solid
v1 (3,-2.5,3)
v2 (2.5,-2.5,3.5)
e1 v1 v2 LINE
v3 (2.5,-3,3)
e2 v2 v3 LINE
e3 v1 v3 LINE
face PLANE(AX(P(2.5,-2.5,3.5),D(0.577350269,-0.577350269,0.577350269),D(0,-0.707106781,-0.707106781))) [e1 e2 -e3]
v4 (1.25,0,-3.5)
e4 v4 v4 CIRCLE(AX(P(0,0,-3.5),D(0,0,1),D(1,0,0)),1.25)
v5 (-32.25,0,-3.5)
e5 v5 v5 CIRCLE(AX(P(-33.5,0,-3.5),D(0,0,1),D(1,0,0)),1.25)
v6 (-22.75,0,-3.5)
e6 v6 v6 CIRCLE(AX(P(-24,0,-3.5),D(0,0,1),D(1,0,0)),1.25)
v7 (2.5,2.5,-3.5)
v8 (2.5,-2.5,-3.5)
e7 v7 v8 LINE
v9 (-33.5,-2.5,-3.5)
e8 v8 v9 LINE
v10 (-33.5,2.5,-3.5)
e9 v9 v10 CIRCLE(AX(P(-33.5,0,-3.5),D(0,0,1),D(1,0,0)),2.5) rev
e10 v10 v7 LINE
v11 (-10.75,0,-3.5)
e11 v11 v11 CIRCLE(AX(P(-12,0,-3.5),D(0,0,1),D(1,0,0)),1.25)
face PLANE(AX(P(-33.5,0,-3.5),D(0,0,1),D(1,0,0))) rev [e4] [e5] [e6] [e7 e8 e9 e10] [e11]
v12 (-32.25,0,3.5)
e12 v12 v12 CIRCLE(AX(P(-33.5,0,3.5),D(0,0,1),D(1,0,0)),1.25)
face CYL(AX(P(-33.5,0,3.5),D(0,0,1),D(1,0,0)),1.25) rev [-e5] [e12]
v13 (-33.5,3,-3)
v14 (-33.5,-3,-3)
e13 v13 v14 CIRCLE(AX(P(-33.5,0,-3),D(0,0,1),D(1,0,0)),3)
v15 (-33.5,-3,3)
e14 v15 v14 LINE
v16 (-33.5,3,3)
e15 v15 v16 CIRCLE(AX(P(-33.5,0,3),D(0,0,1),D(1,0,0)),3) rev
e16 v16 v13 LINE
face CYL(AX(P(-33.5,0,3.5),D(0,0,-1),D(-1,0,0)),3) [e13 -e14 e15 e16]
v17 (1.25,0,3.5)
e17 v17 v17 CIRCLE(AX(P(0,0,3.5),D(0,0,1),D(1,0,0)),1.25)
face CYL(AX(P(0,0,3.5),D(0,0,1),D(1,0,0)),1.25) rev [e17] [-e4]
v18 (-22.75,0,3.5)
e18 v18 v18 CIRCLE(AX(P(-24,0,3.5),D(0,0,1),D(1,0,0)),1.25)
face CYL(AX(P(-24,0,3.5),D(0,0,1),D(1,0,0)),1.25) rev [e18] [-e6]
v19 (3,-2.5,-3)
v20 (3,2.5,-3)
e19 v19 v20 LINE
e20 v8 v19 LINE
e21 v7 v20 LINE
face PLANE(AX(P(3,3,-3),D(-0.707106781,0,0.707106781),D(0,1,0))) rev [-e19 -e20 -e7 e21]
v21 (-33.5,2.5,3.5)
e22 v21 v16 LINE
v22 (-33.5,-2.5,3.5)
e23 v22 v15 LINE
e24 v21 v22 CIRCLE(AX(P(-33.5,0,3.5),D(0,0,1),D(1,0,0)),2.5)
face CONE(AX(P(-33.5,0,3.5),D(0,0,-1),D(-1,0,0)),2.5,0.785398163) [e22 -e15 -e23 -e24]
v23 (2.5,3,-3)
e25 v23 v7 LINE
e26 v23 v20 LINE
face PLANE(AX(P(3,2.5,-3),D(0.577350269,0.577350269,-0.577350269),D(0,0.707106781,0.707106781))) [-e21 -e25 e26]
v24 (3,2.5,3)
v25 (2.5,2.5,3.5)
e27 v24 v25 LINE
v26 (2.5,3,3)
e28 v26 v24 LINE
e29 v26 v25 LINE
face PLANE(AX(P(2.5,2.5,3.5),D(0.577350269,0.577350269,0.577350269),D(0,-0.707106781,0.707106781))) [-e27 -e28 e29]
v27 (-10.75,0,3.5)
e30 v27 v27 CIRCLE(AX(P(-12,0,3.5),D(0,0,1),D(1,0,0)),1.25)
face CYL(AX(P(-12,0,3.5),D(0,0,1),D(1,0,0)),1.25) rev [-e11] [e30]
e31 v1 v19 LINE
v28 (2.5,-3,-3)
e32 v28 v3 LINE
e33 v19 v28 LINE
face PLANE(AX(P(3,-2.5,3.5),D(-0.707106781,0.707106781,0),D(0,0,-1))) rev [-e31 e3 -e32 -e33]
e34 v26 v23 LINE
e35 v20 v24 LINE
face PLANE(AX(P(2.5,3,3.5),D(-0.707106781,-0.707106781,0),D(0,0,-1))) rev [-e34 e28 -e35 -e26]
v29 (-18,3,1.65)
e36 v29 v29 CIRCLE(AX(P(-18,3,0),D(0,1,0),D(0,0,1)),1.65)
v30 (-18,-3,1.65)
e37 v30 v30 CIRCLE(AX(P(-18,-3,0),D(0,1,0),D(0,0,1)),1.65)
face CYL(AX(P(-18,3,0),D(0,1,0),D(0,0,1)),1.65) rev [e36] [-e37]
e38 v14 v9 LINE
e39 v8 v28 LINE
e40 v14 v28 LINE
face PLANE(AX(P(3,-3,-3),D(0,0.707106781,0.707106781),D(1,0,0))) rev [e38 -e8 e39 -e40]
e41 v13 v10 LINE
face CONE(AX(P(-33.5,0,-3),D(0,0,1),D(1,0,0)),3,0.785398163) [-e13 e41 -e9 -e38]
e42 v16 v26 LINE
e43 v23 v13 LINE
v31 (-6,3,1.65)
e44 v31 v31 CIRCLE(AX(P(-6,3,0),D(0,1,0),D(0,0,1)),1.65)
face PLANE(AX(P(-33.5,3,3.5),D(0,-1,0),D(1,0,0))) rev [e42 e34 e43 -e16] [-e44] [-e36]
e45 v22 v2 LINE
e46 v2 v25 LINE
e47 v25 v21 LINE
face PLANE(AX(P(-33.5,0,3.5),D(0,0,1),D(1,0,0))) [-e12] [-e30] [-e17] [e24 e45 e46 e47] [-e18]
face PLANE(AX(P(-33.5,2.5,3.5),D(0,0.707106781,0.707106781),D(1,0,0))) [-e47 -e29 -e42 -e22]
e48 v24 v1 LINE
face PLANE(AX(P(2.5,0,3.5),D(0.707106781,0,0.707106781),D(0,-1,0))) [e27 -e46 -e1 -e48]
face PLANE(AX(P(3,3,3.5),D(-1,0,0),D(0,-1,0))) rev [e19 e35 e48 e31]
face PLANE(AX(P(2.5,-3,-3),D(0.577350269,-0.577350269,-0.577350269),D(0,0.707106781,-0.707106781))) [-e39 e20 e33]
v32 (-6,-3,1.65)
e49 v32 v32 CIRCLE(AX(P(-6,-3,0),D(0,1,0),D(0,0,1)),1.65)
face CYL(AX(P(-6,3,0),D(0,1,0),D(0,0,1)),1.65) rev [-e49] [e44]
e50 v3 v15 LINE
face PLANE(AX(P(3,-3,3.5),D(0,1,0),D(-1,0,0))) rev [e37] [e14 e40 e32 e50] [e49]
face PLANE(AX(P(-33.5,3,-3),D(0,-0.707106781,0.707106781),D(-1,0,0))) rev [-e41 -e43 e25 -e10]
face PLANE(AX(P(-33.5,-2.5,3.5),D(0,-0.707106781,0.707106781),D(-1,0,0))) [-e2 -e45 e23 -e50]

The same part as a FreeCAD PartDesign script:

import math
import FreeCAD as App
import Part
import Sketcher
Q = App.Units.Quantity


def edges_at(feature, points):
    """Names of the edges that pass closest to the given points."""
    edges = feature.Shape.Edges
    near = lambda p: min(range(len(edges)), key=lambda i: edges[i].distToShape(Part.Vertex(*p))[0])
    return sorted({f"Edge{near(p) + 1}" for p in points})

doc = App.newDocument("Part")
body = doc.addObject("PartDesign::Body", "Body")

# Sketch on XY plane
sketch1 = body.newObject("Sketcher::SketchObject", "Sketch")
sketch1.AttachmentSupport = (doc.getObject("XY_Plane"), [""])
sketch1.MapMode = "FlatFace"
sketch1.addGeometry([
    Part.LineSegment(App.Vector(3, -3, 0), App.Vector(3, 3, 0)),  # 0
    Part.LineSegment(App.Vector(3, 3, 0), App.Vector(-33.5, 3, 0)),  # 1
    Part.ArcOfCircle(Part.Circle(App.Vector(-33.5, 0, 0), App.Vector(0, 0, 1), 3), math.radians(90), math.radians(270)),  # 2
    Part.LineSegment(App.Vector(-33.5, -3, 0), App.Vector(3, -3, 0)),  # 3
    Part.Circle(App.Vector(0, 0, 0), App.Vector(0, 0, 1), 0.5),  # 4
    Part.Circle(App.Vector(-12, 0, 0), App.Vector(0, 0, 1), 0.5),  # 5
    Part.Circle(App.Vector(-24, 0, 0), App.Vector(0, 0, 1), 0.5),  # 6
    Part.Circle(App.Vector(-33.5, 0, 0), App.Vector(0, 0, 1), 0.5),  # 7
], False)
sketch1.addConstraint([
    Sketcher.Constraint("Coincident", 0, 2, 1, 1),
    Sketcher.Constraint("Tangent", 1, 2, 2, 1),
    Sketcher.Constraint("Tangent", 2, 2, 3, 1),
    Sketcher.Constraint("Coincident", 3, 2, 0, 1),
    Sketcher.Constraint("Vertical", 0),
    Sketcher.Constraint("Horizontal", 1),
    Sketcher.Constraint("Horizontal", 3),
    Sketcher.Constraint("Coincident", 4, 3, -1, 1),
    Sketcher.Constraint("Coincident", 7, 3, 2, 3),
    Sketcher.Constraint("Equal", 4, 5),
    Sketcher.Constraint("Equal", 5, 6),
    Sketcher.Constraint("Equal", 6, 7),
    Sketcher.Constraint("PointOnObject", 2, 3, -1),
    Sketcher.Constraint("PointOnObject", 5, 3, -1),
    Sketcher.Constraint("PointOnObject", 6, 3, -1),
    Sketcher.Constraint("Diameter", 4, Q("1 mm")),
    Sketcher.Constraint("Radius", 2, Q("3 mm")),
    Sketcher.Constraint("DistanceX", 1, 2, 1, 1, Q("36.5 mm")),
    Sketcher.Constraint("DistanceX", 5, 3, -1, 1, Q("12 mm")),
    Sketcher.Constraint("DistanceX", 6, 3, -1, 1, Q("24 mm")),
    Sketcher.Constraint("DistanceX", -1, 1, 0, 2, Q("3 mm")),
])
pad1 = body.newObject("PartDesign::Pad", "Pad")
pad1.Profile = sketch1
pad1.Length = 7
pad1.Midplane = True

# Sketch on XY plane
sketch2 = body.newObject("Sketcher::SketchObject", "Sketch001")
sketch2.AttachmentSupport = (doc.getObject("XY_Plane"), [""])
sketch2.MapMode = "FlatFace"
sketch2.AttachmentOffset = App.Placement(App.Vector(0, 0, 3.5), App.Rotation())
sketch2.addGeometry([
    Part.Circle(App.Vector(0, 0, 0), App.Vector(0, 0, 1), 1.2),
    Part.Circle(App.Vector(-12, 0, 0), App.Vector(0, 0, 1), 1.2),
    Part.Circle(App.Vector(-24, 0, 0), App.Vector(0, 0, 1), 1.2),
    Part.Circle(App.Vector(-33.5, 0, 0), App.Vector(0, 0, 1), 1.2),
], False)
sketch2.addConstraint([
    Sketcher.Constraint("Coincident", 0, 3, -1, 1),
    Sketcher.Constraint("Equal", 0, 1),
    Sketcher.Constraint("Equal", 1, 2),
    Sketcher.Constraint("Equal", 2, 3),
    Sketcher.Constraint("PointOnObject", 1, 3, -1),
    Sketcher.Constraint("PointOnObject", 2, 3, -1),
    Sketcher.Constraint("PointOnObject", 3, 3, -1),
    Sketcher.Constraint("Diameter", 0, Q("2.5 mm")),
    Sketcher.Constraint("DistanceX", 1, 3, -1, 1, Q("12 mm")),
    Sketcher.Constraint("DistanceX", 2, 3, -1, 1, Q("24 mm")),
    Sketcher.Constraint("DistanceX", 3, 3, -1, 1, Q("33.5 mm")),
])
doc.recompute()
hole = body.newObject("PartDesign::Hole", "Hole")
hole.Profile = sketch2
hole.ThreadType = "None"
hole.Diameter = 2.5
hole.DepthType = "ThroughAll"

# Sketch on XZ plane
sketch3 = body.newObject("Sketcher::SketchObject", "Sketch002")
sketch3.AttachmentSupport = (doc.getObject("XZ_Plane"), [""])
sketch3.MapMode = "FlatFace"
sketch3.AttachmentOffset = App.Placement(App.Vector(0, 0, -3), App.Rotation())
sketch3.addGeometry([
    Part.Circle(App.Vector(-6, 0, 0), App.Vector(0, 0, 1), 1.6),
    Part.Circle(App.Vector(-18, 0, 0), App.Vector(0, 0, 1), 1.6),
], False)
sketch3.addConstraint([
    Sketcher.Constraint("Equal", 0, 1),
    Sketcher.Constraint("PointOnObject", 0, 3, -1),
    Sketcher.Constraint("PointOnObject", 1, 3, -1),
    Sketcher.Constraint("Diameter", 0, Q("3.3 mm")),
    Sketcher.Constraint("DistanceX", 0, 3, -1, 1, Q("6 mm")),
    Sketcher.Constraint("DistanceX", 1, 3, -1, 1, Q("18 mm")),
])
doc.recompute()
hole2 = body.newObject("PartDesign::Hole", "Hole001")
hole2.Profile = sketch3
hole2.ThreadType = "None"
hole2.Diameter = 3.3
hole2.DepthType = "ThroughAll"
hole2.Reversed = True
doc.recompute()

chamfer = body.newObject("PartDesign::Chamfer", "Chamfer")
chamfer.Base = (hole2, edges_at(hole2, [
    (-15.25, -3, 3.5),
    (3, 0, 3.5),
    (-15.25, 3, 3.5),
    (3, 0, -3.5),
    (-15.25, -3, -3.5),
    (-36.5, 0, -3.5),
    (-15.25, 3, -3.5),
    (-36.5, 0, 3.5),
    (3, 3, 0),
    (3, -3, 0),
]))
chamfer.Size = 0.5

doc.recompute()
